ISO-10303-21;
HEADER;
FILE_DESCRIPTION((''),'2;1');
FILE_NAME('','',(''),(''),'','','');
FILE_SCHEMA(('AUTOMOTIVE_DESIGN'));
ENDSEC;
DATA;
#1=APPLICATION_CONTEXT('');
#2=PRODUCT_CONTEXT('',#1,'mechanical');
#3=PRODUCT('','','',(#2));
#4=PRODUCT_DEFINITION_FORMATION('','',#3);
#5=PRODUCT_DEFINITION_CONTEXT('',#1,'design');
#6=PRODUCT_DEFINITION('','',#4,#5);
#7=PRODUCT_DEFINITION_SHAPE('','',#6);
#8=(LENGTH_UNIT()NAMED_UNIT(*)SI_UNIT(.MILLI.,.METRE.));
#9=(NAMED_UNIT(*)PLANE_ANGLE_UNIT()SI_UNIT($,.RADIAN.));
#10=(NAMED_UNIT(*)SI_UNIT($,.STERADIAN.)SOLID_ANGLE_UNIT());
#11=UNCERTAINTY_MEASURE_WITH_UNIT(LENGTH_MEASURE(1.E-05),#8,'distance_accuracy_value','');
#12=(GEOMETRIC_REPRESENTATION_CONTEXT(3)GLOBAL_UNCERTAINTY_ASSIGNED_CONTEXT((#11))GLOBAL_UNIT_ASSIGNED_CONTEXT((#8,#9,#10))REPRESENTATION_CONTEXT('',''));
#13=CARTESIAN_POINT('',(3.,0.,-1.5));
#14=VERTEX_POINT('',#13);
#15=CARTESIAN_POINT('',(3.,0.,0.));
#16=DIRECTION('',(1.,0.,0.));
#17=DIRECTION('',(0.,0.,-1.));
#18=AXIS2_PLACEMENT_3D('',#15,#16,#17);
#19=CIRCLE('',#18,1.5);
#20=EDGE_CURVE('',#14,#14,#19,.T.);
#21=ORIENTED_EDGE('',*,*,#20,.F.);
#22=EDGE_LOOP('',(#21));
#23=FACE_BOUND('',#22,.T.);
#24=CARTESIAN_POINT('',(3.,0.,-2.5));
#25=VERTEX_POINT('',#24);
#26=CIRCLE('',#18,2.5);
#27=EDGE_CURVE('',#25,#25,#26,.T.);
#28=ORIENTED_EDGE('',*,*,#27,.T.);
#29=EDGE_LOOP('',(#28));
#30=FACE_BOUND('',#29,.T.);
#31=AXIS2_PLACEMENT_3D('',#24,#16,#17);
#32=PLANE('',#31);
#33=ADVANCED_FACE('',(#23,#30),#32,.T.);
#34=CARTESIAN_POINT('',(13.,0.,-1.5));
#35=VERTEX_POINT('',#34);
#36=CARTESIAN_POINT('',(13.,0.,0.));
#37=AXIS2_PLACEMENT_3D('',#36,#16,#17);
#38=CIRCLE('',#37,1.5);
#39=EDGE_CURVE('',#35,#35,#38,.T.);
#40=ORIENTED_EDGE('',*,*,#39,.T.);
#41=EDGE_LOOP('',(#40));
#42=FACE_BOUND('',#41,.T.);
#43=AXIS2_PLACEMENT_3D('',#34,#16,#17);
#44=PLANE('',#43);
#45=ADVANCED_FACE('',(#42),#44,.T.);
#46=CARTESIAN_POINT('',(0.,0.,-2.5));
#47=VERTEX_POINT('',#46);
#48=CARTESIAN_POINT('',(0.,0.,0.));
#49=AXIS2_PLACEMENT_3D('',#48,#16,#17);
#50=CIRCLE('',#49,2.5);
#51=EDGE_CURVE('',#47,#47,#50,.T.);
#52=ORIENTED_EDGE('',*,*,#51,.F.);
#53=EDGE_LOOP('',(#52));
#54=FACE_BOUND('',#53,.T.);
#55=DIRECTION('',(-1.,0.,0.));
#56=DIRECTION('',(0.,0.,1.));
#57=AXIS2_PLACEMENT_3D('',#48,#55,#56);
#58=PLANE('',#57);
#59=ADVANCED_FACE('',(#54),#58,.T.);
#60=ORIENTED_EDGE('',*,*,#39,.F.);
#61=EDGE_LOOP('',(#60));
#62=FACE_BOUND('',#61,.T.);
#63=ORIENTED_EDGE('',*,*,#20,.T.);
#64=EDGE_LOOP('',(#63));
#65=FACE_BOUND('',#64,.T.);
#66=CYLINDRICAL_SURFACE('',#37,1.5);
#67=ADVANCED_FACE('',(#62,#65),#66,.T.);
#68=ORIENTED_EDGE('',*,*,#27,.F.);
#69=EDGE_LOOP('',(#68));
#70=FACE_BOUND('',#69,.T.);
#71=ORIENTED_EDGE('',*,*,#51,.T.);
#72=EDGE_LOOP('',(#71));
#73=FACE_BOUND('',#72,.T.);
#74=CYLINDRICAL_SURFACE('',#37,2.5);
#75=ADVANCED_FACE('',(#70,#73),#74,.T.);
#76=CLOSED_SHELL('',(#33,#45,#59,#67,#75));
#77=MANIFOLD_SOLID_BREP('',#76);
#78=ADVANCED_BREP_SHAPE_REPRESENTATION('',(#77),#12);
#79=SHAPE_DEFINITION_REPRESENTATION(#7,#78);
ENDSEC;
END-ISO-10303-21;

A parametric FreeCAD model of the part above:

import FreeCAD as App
import Part
import Sketcher

V = App.Vector
Q = App.Units.Quantity


def add_polygon(sketch, points):
    """Adds a closed chain of lines whose ends are joined by coincident constraints."""
    first, n = sketch.GeometryCount, len(points)
    for a, b in zip(points, points[1:] + points[:1]):
        sketch.addGeometry(Part.LineSegment(App.Vector(*a, 0), App.Vector(*b, 0)), False)
    for i in range(n):
        sketch.addConstraint(Sketcher.Constraint("Coincident", first + i, 2, first + (i + 1) % n, 1))

doc = App.newDocument("Part")
body = doc.addObject("PartDesign::Body", "Body")

# Sketch on XZ plane
sketch1 = body.newObject("Sketcher::SketchObject", "Sketch")
sketch1.AttachmentSupport = (doc.getObject("XZ_Plane"), [""])
sketch1.MapMode = "FlatFace"
add_polygon(sketch1, [(0, -2.5), (0, 0), (13, 0), (13, -1.5), (3, -1.5), (3, -2.5)])  # lines 0-5
sketch1.addConstraint([
    Sketcher.Constraint("Vertical", 0),
    Sketcher.Constraint("Horizontal", 1),
    Sketcher.Constraint("Vertical", 2),
    Sketcher.Constraint("Horizontal", 3),
    Sketcher.Constraint("Vertical", 4),
    Sketcher.Constraint("Horizontal", 5),
    Sketcher.Constraint("Coincident", 0, 2, -1, 1),
    Sketcher.Constraint("DistanceX", 1, 1, 1, 2, Q("13 mm")),
    Sketcher.Constraint("DistanceX", 3, 2, 3, 1, Q("10 mm")),
    Sketcher.Constraint("DistanceY", 4, 2, 4, 1, Q("1 mm")),
    Sketcher.Constraint("DistanceY", 0, 1, 0, 2, Q("2.5 mm")),
])
revolution = body.newObject("PartDesign::Revolution", "Revolution")
revolution.Profile = sketch1
revolution.ReferenceAxis = (sketch1, ["H_Axis"])
revolution.Angle = 360

doc.recompute()
